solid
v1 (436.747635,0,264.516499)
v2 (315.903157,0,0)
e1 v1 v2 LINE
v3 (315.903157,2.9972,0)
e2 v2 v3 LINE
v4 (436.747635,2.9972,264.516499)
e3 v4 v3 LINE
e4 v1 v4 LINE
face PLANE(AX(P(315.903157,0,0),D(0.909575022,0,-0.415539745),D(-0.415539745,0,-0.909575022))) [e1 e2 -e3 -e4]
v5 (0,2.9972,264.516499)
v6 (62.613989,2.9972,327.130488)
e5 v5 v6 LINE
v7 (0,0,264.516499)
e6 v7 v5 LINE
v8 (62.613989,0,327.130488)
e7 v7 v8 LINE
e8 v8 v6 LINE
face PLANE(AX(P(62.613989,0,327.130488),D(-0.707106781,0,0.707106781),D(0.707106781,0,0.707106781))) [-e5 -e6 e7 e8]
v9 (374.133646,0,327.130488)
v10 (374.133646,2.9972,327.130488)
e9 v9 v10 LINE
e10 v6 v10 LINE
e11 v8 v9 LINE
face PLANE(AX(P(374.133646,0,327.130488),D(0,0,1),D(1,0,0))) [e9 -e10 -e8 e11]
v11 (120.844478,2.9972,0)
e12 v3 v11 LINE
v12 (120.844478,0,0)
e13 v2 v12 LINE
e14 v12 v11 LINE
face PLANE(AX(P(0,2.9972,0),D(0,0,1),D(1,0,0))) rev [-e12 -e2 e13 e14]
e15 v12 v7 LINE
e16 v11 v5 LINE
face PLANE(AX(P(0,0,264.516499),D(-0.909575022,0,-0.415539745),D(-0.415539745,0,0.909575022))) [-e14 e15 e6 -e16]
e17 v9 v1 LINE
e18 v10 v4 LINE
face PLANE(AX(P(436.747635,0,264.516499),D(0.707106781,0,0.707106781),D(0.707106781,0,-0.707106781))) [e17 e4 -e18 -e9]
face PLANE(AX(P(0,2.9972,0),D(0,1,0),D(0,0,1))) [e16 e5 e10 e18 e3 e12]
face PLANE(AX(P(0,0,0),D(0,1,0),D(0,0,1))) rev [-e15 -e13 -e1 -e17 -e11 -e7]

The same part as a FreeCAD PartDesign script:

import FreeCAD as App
import Part
import Sketcher

V = App.Vector


def add_polygon(sketch, points):
    """Adds a closed chain of lines whose ends are joined by coincident constraints."""
    first, n = sketch.GeometryCount, len(points)
    for a, b in zip(points, points[1:] + points[:1]):
        sketch.addGeometry(Part.LineSegment(App.Vector(*a, 0), App.Vector(*b, 0)), False)
    for i in range(n):
        sketch.addConstraint(Sketcher.Constraint("Coincident", first + i, 2, first + (i + 1) % n, 1))

doc = App.newDocument("Part")
body = doc.addObject("PartDesign::Body", "Body")

# Sketch on XZ plane
sketch1 = body.newObject("Sketcher::SketchObject", "Sketch")
sketch1.AttachmentSupport = (doc.getObject("XZ_Plane"), [""])
sketch1.MapMode = "FlatFace"
add_polygon(sketch1, [(0, 0), (0, 500), (500, 500), (500, 0)])  # lines 0-3
sketch1.addConstraint(Sketcher.Constraint("Vertical", 0))
sketch1.addConstraint(Sketcher.Constraint("Horizontal", 1))
sketch1.addConstraint(Sketcher.Constraint("Vertical", 2))
sketch1.addConstraint(Sketcher.Constraint("Horizontal", 3))
sketch1.addConstraint(Sketcher.Constraint("Coincident", 3, 2, -1, 1))
sketch1.addConstraint(Sketcher.Constraint("Equal", 3, 0))
sketch1.addConstraint(Sketcher.Constraint("DistanceX", 1, 1, 1, 2, 500.0))
pad1 = body.newObject("PartDesign::Pad", "Pad")
pad1.Profile = sketch1
pad1.Length = 2.9972
pad1.Reversed = True

# Sketch on XZ plane
sketch2 = body.newObject("Sketcher::SketchObject", "Sketch001")
sketch2.AttachmentSupport = (doc.getObject("XZ_Plane"), [""])
sketch2.MapMode = "FlatFace"
sketch2.AttachmentOffset = App.Placement(V(0, 0, -2.9972), App.Rotation())
add_polygon(sketch2, [(-71.711, -71.711), (-71.711, 571.711), (571.711, 571.711), (571.711, -71.711)])  # lines 0-3
add_polygon(sketch2, [(120.844478, 0), (315.903157, 0), (436.747635, 264.516499), (374.133646, 327.130488), (62.613989, 327.130488), (0, 264.516499)])  # lines 4-9
sketch2.addConstraint(Sketcher.Constraint("Vertical", 0))
sketch2.addConstraint(Sketcher.Constraint("Horizontal", 1))
sketch2.addConstraint(Sketcher.Constraint("Vertical", 2))
sketch2.addConstraint(Sketcher.Constraint("Horizontal", 3))
sketch2.addConstraint(Sketcher.Constraint("Horizontal", 4))
sketch2.addConstraint(Sketcher.Constraint("Horizontal", 7))
sketch2.addConstraint(Sketcher.Constraint("PointOnObject", 4, 2, -1))
sketch2.addConstraint(Sketcher.Constraint("PointOnObject", 8, 2, -2))
sketch2.addConstraint(Sketcher.Constraint("Perpendicular", 6, 8))
sketch2.addConstraint(Sketcher.Constraint("Horizontal", 5, 2, 8, 2))
sketch2.addConstraint(Sketcher.Constraint("Equal", 3, 0))
sketch2.addConstraint(Sketcher.Constraint("Equal", 6, 8))
sketch2.addConstraint(Sketcher.Constraint("Equal", 5, 9))
sketch2.addConstraint(Sketcher.Constraint("DistanceX", 1, 1, 1, 2, 643.422))
sketch2.addConstraint(Sketcher.Constraint("DistanceX", 0, 2, -1, 1, 71.711))
sketch2.addConstraint(Sketcher.Constraint("DistanceY", -1, 1, 0, 2, 571.711))
sketch2.addConstraint(Sketcher.Constraint("DistanceX", 4, 1, 4, 2, 195.058679))
sketch2.addConstraint(Sketcher.Constraint("DistanceY", -1, 1, 5, 2, 264.516499))
sketch2.addConstraint(Sketcher.Constraint("DistanceX", 7, 2, 7, 1, 311.519657))
sketch2.addConstraint(Sketcher.Constraint("DistanceY", -1, 1, 6, 2, 327.130488))
pocket1 = body.newObject("PartDesign::Pocket", "Pocket")
pocket1.Profile = sketch2
pocket1.Type = "ThroughAll"
pocket1.Reversed = True

doc.recompute()
